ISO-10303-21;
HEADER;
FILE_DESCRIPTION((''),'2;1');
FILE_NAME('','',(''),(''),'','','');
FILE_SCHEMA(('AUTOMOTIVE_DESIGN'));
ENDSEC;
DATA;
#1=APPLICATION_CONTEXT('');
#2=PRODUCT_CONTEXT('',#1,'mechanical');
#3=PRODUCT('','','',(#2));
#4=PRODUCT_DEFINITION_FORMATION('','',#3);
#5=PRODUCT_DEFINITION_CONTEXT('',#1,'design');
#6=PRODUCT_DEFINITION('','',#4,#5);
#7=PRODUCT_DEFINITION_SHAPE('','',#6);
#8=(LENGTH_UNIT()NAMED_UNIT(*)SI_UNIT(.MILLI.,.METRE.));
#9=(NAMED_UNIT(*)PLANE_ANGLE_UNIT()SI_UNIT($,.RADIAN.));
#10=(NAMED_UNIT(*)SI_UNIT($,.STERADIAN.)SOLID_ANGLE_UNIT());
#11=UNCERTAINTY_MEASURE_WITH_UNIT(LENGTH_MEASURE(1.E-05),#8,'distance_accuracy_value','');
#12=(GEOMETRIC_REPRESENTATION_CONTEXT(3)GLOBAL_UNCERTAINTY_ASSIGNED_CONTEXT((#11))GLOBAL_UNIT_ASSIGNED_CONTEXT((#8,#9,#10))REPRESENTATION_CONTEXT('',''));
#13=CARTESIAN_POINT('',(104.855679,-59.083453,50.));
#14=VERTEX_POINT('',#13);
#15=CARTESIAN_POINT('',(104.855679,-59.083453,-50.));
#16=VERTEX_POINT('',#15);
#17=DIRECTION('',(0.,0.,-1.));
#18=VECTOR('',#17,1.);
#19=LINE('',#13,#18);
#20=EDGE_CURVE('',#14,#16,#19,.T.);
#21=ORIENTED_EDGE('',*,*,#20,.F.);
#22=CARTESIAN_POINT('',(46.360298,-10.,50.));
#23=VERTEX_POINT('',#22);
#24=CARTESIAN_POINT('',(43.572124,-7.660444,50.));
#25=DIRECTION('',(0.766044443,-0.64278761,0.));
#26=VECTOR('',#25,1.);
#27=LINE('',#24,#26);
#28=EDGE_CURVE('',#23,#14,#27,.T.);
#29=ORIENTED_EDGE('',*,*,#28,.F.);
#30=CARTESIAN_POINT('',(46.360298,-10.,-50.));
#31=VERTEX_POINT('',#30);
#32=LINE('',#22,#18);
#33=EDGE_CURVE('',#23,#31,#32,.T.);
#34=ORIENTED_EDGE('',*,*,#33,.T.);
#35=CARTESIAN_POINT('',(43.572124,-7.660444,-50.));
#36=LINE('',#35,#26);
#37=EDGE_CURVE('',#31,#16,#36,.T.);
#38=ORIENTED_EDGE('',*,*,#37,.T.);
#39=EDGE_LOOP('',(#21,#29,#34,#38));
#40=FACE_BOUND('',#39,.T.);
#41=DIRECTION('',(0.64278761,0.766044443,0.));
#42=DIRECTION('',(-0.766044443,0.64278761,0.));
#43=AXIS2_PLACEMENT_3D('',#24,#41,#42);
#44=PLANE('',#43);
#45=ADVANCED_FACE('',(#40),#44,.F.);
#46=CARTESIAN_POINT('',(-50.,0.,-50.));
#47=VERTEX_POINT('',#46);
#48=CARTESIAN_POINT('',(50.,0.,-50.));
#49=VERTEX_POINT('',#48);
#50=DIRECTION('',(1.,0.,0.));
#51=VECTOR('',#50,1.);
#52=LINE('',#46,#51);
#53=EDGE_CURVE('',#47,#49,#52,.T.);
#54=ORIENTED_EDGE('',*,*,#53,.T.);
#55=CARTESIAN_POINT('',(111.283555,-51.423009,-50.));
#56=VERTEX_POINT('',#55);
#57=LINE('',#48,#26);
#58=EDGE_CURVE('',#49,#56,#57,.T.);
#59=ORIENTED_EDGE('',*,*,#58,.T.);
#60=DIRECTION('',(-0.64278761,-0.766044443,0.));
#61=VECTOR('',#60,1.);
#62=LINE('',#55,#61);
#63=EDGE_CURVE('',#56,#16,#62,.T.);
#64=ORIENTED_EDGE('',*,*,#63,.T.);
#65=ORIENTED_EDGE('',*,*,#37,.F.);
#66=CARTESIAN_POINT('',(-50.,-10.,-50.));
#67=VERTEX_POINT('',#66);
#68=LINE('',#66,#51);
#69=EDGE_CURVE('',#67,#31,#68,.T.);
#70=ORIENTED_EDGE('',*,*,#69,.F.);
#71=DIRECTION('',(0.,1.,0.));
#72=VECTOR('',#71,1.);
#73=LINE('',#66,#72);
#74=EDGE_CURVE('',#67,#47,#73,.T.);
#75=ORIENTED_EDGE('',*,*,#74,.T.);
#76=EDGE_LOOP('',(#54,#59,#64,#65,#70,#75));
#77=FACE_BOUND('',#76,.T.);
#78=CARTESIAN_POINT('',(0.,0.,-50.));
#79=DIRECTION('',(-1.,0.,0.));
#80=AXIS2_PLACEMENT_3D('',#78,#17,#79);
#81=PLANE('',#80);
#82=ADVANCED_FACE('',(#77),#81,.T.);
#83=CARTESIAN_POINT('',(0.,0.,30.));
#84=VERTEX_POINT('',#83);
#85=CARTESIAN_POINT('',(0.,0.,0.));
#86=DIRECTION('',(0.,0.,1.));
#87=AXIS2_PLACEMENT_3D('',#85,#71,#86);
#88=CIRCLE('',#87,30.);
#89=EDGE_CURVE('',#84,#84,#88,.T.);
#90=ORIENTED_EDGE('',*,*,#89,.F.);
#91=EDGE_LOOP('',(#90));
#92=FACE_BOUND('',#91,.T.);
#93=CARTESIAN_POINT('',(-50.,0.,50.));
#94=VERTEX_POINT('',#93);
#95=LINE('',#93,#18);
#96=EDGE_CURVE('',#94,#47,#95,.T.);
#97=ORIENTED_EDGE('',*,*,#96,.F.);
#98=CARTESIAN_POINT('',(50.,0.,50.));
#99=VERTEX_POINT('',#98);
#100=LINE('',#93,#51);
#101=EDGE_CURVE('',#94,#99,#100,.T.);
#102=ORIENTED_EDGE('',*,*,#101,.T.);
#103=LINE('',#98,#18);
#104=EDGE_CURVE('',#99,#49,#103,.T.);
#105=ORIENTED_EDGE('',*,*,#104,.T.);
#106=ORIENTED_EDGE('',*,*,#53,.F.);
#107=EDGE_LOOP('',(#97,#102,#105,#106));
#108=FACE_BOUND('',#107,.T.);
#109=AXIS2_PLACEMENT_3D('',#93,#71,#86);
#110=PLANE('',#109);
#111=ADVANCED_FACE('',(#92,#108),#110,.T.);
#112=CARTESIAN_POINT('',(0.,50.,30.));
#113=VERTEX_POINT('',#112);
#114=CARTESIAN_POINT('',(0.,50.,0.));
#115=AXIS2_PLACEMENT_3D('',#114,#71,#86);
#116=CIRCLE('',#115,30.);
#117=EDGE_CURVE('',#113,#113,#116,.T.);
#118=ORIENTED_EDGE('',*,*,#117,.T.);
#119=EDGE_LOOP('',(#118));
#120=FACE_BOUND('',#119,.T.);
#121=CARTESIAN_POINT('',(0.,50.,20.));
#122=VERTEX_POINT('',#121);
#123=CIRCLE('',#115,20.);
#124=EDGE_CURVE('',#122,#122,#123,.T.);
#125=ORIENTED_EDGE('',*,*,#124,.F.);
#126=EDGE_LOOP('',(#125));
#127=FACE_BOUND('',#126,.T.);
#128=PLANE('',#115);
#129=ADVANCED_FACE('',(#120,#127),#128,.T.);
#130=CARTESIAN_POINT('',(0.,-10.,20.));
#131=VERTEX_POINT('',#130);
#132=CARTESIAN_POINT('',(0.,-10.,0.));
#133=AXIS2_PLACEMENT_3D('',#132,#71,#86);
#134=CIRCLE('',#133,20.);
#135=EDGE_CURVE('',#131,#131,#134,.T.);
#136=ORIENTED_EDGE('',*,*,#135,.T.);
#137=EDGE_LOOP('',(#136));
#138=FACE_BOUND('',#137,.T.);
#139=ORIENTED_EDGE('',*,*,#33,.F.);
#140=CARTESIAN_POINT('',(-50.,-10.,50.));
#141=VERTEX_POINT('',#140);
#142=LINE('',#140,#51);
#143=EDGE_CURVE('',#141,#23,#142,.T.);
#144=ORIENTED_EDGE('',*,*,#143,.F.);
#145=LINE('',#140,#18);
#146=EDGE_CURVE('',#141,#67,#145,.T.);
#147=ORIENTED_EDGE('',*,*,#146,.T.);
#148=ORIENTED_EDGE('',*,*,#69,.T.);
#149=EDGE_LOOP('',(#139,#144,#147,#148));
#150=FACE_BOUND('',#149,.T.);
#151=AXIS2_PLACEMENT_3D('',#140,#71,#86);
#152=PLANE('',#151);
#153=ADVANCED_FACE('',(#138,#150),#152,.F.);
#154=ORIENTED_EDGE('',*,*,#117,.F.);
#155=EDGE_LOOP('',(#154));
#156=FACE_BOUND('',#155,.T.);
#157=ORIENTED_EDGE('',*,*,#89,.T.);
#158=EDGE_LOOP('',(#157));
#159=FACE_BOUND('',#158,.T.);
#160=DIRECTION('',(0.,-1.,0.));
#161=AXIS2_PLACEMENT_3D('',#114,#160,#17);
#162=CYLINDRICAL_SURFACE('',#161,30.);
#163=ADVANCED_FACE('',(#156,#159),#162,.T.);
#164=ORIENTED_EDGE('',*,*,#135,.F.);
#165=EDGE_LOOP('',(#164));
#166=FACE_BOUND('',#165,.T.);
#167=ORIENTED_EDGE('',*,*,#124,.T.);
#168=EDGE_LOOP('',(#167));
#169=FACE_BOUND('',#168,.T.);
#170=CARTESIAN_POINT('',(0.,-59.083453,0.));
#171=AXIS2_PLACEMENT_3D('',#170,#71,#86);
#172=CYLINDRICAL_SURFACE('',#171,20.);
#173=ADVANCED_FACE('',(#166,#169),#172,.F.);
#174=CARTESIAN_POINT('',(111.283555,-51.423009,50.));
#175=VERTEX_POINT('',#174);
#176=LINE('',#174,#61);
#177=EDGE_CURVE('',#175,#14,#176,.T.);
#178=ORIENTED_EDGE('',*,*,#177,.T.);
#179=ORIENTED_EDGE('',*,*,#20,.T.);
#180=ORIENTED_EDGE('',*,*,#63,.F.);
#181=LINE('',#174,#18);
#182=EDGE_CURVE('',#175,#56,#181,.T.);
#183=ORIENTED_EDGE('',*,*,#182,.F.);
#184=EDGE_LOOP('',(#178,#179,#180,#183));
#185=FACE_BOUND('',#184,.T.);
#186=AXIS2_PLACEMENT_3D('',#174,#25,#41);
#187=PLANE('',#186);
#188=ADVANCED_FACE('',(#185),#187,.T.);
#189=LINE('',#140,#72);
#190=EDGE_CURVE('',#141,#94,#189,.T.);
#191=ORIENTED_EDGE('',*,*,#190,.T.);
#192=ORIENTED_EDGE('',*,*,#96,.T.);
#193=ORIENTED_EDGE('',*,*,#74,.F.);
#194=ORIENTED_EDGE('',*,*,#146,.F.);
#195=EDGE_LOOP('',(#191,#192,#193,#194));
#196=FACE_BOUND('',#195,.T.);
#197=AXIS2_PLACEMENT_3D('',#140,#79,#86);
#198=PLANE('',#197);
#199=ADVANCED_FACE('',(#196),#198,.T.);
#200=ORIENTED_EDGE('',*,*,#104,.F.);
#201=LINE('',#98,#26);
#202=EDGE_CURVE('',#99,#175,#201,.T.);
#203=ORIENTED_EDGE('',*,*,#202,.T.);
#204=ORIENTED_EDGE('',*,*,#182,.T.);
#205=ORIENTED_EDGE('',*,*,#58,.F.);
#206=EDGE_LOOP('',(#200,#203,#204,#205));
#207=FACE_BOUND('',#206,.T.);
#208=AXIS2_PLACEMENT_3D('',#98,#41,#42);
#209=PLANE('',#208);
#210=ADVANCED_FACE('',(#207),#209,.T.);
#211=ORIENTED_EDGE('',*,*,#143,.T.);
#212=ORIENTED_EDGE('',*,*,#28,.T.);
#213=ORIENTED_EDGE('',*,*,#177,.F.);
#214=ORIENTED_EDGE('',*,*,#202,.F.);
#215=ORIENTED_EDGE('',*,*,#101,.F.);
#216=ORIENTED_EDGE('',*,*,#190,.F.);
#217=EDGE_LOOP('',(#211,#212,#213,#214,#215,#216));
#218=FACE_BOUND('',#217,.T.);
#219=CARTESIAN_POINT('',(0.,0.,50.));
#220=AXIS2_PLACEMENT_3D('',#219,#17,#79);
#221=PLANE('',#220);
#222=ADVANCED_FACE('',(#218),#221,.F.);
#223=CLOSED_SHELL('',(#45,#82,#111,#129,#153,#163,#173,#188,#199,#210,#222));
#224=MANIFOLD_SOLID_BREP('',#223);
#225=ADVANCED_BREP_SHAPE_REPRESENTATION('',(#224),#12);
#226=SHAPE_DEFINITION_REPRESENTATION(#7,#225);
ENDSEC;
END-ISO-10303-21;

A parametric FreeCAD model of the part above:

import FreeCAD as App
import Part
import Sketcher

V = App.Vector
Q = App.Units.Quantity

doc = App.newDocument("Part")
body = doc.addObject("PartDesign::Body", "Body")

sketch1 = body.newObject("Sketcher::SketchObject", "Sketch")
sketch1.AttachmentSupport = (doc.getObject("XY_Plane"), [""])
sketch1.MapMode = "FlatFace"
sketch1.addGeometry([
    Part.LineSegment(V(50, 0, 0), V(-50, 0, 0)),
    Part.LineSegment(V(-50, 0, 0), V(-50, -10, 0)),
    Part.LineSegment(V(-50, -10, 0), V(46.360298, -10, 0)),
    Part.LineSegment(V(46.360298, -10, 0), V(104.855679, -59.083453, 0)),
    Part.LineSegment(V(104.855679, -59.083453, 0), V(111.283555, -51.423009, 0)),
    Part.LineSegment(V(111.283555, -51.423009, 0), V(50, 0, 0)),
], False)
sketch1.addConstraint([
    Sketcher.Constraint("Coincident", 0, 2, 1, 1),
    Sketcher.Constraint("Coincident", 1, 2, 2, 1),
    Sketcher.Constraint("Coincident", 2, 2, 3, 1),
    Sketcher.Constraint("Coincident", 3, 2, 4, 1),
    Sketcher.Constraint("Coincident", 4, 2, 5, 1),
    Sketcher.Constraint("Coincident", 5, 2, 0, 1),
    Sketcher.Constraint("Horizontal", 0),
    Sketcher.Constraint("Vertical", 1),
    Sketcher.Constraint("Horizontal", 2),
    Sketcher.Constraint("Symmetric", 0, 2, 5, 2, -1, 1),
    Sketcher.Constraint("Perpendicular", 3, 4),
    Sketcher.Constraint("Perpendicular", 4, 5),
    Sketcher.Constraint("DistanceX", 0, 2, 0, 1, Q("100 mm")),
    Sketcher.Constraint("DistanceY", 1, 2, 1, 1, Q("10 mm")),
    Sketcher.Constraint("Angle", 3, Q("-40 deg")),
    Sketcher.Constraint("Distance", 4, Q("10 mm")),
    Sketcher.Constraint("Distance", 5, Q("80 mm")),
])
pad1 = body.newObject("PartDesign::Pad", "Pad")
pad1.Profile = sketch1
pad1.Length = 100
pad1.Midplane = True

sketch2 = body.newObject("Sketcher::SketchObject", "Sketch001")
sketch2.AttachmentSupport = (doc.getObject("XZ_Plane"), [""])
sketch2.MapMode = "FlatFace"
sketch2.addGeometry(Part.Circle(V(0, 0, 0), V(0, 0, 1), 30), False)
sketch2.addConstraint([
    Sketcher.Constraint("Coincident", 0, 3, -1, 1),
    Sketcher.Constraint("Diameter", 0, Q("60 mm")),
])
pad2 = body.newObject("PartDesign::Pad", "Pad001")
pad2.Profile = sketch2
pad2.Length = 50
pad2.Reversed = True

sketch3 = body.newObject("Sketcher::SketchObject", "Sketch002")
sketch3.AttachmentSupport = (doc.getObject("XZ_Plane"), [""])
sketch3.MapMode = "FlatFace"
sketch3.AttachmentOffset = App.Placement(V(0, 0, -50), App.Rotation())
sketch3.addGeometry(Part.Circle(V(0, 0, 0), V(0, 0, 1), 20), False)
sketch3.addConstraint([
    Sketcher.Constraint("Coincident", 0, 3, -1, 1),
    Sketcher.Constraint("Diameter", 0, Q("40 mm")),
])
pocket1 = body.newObject("PartDesign::Pocket", "Pocket")
pocket1.Profile = sketch3
pocket1.Type = "ThroughAll"
pocket1.Reversed = True

doc.recompute()
